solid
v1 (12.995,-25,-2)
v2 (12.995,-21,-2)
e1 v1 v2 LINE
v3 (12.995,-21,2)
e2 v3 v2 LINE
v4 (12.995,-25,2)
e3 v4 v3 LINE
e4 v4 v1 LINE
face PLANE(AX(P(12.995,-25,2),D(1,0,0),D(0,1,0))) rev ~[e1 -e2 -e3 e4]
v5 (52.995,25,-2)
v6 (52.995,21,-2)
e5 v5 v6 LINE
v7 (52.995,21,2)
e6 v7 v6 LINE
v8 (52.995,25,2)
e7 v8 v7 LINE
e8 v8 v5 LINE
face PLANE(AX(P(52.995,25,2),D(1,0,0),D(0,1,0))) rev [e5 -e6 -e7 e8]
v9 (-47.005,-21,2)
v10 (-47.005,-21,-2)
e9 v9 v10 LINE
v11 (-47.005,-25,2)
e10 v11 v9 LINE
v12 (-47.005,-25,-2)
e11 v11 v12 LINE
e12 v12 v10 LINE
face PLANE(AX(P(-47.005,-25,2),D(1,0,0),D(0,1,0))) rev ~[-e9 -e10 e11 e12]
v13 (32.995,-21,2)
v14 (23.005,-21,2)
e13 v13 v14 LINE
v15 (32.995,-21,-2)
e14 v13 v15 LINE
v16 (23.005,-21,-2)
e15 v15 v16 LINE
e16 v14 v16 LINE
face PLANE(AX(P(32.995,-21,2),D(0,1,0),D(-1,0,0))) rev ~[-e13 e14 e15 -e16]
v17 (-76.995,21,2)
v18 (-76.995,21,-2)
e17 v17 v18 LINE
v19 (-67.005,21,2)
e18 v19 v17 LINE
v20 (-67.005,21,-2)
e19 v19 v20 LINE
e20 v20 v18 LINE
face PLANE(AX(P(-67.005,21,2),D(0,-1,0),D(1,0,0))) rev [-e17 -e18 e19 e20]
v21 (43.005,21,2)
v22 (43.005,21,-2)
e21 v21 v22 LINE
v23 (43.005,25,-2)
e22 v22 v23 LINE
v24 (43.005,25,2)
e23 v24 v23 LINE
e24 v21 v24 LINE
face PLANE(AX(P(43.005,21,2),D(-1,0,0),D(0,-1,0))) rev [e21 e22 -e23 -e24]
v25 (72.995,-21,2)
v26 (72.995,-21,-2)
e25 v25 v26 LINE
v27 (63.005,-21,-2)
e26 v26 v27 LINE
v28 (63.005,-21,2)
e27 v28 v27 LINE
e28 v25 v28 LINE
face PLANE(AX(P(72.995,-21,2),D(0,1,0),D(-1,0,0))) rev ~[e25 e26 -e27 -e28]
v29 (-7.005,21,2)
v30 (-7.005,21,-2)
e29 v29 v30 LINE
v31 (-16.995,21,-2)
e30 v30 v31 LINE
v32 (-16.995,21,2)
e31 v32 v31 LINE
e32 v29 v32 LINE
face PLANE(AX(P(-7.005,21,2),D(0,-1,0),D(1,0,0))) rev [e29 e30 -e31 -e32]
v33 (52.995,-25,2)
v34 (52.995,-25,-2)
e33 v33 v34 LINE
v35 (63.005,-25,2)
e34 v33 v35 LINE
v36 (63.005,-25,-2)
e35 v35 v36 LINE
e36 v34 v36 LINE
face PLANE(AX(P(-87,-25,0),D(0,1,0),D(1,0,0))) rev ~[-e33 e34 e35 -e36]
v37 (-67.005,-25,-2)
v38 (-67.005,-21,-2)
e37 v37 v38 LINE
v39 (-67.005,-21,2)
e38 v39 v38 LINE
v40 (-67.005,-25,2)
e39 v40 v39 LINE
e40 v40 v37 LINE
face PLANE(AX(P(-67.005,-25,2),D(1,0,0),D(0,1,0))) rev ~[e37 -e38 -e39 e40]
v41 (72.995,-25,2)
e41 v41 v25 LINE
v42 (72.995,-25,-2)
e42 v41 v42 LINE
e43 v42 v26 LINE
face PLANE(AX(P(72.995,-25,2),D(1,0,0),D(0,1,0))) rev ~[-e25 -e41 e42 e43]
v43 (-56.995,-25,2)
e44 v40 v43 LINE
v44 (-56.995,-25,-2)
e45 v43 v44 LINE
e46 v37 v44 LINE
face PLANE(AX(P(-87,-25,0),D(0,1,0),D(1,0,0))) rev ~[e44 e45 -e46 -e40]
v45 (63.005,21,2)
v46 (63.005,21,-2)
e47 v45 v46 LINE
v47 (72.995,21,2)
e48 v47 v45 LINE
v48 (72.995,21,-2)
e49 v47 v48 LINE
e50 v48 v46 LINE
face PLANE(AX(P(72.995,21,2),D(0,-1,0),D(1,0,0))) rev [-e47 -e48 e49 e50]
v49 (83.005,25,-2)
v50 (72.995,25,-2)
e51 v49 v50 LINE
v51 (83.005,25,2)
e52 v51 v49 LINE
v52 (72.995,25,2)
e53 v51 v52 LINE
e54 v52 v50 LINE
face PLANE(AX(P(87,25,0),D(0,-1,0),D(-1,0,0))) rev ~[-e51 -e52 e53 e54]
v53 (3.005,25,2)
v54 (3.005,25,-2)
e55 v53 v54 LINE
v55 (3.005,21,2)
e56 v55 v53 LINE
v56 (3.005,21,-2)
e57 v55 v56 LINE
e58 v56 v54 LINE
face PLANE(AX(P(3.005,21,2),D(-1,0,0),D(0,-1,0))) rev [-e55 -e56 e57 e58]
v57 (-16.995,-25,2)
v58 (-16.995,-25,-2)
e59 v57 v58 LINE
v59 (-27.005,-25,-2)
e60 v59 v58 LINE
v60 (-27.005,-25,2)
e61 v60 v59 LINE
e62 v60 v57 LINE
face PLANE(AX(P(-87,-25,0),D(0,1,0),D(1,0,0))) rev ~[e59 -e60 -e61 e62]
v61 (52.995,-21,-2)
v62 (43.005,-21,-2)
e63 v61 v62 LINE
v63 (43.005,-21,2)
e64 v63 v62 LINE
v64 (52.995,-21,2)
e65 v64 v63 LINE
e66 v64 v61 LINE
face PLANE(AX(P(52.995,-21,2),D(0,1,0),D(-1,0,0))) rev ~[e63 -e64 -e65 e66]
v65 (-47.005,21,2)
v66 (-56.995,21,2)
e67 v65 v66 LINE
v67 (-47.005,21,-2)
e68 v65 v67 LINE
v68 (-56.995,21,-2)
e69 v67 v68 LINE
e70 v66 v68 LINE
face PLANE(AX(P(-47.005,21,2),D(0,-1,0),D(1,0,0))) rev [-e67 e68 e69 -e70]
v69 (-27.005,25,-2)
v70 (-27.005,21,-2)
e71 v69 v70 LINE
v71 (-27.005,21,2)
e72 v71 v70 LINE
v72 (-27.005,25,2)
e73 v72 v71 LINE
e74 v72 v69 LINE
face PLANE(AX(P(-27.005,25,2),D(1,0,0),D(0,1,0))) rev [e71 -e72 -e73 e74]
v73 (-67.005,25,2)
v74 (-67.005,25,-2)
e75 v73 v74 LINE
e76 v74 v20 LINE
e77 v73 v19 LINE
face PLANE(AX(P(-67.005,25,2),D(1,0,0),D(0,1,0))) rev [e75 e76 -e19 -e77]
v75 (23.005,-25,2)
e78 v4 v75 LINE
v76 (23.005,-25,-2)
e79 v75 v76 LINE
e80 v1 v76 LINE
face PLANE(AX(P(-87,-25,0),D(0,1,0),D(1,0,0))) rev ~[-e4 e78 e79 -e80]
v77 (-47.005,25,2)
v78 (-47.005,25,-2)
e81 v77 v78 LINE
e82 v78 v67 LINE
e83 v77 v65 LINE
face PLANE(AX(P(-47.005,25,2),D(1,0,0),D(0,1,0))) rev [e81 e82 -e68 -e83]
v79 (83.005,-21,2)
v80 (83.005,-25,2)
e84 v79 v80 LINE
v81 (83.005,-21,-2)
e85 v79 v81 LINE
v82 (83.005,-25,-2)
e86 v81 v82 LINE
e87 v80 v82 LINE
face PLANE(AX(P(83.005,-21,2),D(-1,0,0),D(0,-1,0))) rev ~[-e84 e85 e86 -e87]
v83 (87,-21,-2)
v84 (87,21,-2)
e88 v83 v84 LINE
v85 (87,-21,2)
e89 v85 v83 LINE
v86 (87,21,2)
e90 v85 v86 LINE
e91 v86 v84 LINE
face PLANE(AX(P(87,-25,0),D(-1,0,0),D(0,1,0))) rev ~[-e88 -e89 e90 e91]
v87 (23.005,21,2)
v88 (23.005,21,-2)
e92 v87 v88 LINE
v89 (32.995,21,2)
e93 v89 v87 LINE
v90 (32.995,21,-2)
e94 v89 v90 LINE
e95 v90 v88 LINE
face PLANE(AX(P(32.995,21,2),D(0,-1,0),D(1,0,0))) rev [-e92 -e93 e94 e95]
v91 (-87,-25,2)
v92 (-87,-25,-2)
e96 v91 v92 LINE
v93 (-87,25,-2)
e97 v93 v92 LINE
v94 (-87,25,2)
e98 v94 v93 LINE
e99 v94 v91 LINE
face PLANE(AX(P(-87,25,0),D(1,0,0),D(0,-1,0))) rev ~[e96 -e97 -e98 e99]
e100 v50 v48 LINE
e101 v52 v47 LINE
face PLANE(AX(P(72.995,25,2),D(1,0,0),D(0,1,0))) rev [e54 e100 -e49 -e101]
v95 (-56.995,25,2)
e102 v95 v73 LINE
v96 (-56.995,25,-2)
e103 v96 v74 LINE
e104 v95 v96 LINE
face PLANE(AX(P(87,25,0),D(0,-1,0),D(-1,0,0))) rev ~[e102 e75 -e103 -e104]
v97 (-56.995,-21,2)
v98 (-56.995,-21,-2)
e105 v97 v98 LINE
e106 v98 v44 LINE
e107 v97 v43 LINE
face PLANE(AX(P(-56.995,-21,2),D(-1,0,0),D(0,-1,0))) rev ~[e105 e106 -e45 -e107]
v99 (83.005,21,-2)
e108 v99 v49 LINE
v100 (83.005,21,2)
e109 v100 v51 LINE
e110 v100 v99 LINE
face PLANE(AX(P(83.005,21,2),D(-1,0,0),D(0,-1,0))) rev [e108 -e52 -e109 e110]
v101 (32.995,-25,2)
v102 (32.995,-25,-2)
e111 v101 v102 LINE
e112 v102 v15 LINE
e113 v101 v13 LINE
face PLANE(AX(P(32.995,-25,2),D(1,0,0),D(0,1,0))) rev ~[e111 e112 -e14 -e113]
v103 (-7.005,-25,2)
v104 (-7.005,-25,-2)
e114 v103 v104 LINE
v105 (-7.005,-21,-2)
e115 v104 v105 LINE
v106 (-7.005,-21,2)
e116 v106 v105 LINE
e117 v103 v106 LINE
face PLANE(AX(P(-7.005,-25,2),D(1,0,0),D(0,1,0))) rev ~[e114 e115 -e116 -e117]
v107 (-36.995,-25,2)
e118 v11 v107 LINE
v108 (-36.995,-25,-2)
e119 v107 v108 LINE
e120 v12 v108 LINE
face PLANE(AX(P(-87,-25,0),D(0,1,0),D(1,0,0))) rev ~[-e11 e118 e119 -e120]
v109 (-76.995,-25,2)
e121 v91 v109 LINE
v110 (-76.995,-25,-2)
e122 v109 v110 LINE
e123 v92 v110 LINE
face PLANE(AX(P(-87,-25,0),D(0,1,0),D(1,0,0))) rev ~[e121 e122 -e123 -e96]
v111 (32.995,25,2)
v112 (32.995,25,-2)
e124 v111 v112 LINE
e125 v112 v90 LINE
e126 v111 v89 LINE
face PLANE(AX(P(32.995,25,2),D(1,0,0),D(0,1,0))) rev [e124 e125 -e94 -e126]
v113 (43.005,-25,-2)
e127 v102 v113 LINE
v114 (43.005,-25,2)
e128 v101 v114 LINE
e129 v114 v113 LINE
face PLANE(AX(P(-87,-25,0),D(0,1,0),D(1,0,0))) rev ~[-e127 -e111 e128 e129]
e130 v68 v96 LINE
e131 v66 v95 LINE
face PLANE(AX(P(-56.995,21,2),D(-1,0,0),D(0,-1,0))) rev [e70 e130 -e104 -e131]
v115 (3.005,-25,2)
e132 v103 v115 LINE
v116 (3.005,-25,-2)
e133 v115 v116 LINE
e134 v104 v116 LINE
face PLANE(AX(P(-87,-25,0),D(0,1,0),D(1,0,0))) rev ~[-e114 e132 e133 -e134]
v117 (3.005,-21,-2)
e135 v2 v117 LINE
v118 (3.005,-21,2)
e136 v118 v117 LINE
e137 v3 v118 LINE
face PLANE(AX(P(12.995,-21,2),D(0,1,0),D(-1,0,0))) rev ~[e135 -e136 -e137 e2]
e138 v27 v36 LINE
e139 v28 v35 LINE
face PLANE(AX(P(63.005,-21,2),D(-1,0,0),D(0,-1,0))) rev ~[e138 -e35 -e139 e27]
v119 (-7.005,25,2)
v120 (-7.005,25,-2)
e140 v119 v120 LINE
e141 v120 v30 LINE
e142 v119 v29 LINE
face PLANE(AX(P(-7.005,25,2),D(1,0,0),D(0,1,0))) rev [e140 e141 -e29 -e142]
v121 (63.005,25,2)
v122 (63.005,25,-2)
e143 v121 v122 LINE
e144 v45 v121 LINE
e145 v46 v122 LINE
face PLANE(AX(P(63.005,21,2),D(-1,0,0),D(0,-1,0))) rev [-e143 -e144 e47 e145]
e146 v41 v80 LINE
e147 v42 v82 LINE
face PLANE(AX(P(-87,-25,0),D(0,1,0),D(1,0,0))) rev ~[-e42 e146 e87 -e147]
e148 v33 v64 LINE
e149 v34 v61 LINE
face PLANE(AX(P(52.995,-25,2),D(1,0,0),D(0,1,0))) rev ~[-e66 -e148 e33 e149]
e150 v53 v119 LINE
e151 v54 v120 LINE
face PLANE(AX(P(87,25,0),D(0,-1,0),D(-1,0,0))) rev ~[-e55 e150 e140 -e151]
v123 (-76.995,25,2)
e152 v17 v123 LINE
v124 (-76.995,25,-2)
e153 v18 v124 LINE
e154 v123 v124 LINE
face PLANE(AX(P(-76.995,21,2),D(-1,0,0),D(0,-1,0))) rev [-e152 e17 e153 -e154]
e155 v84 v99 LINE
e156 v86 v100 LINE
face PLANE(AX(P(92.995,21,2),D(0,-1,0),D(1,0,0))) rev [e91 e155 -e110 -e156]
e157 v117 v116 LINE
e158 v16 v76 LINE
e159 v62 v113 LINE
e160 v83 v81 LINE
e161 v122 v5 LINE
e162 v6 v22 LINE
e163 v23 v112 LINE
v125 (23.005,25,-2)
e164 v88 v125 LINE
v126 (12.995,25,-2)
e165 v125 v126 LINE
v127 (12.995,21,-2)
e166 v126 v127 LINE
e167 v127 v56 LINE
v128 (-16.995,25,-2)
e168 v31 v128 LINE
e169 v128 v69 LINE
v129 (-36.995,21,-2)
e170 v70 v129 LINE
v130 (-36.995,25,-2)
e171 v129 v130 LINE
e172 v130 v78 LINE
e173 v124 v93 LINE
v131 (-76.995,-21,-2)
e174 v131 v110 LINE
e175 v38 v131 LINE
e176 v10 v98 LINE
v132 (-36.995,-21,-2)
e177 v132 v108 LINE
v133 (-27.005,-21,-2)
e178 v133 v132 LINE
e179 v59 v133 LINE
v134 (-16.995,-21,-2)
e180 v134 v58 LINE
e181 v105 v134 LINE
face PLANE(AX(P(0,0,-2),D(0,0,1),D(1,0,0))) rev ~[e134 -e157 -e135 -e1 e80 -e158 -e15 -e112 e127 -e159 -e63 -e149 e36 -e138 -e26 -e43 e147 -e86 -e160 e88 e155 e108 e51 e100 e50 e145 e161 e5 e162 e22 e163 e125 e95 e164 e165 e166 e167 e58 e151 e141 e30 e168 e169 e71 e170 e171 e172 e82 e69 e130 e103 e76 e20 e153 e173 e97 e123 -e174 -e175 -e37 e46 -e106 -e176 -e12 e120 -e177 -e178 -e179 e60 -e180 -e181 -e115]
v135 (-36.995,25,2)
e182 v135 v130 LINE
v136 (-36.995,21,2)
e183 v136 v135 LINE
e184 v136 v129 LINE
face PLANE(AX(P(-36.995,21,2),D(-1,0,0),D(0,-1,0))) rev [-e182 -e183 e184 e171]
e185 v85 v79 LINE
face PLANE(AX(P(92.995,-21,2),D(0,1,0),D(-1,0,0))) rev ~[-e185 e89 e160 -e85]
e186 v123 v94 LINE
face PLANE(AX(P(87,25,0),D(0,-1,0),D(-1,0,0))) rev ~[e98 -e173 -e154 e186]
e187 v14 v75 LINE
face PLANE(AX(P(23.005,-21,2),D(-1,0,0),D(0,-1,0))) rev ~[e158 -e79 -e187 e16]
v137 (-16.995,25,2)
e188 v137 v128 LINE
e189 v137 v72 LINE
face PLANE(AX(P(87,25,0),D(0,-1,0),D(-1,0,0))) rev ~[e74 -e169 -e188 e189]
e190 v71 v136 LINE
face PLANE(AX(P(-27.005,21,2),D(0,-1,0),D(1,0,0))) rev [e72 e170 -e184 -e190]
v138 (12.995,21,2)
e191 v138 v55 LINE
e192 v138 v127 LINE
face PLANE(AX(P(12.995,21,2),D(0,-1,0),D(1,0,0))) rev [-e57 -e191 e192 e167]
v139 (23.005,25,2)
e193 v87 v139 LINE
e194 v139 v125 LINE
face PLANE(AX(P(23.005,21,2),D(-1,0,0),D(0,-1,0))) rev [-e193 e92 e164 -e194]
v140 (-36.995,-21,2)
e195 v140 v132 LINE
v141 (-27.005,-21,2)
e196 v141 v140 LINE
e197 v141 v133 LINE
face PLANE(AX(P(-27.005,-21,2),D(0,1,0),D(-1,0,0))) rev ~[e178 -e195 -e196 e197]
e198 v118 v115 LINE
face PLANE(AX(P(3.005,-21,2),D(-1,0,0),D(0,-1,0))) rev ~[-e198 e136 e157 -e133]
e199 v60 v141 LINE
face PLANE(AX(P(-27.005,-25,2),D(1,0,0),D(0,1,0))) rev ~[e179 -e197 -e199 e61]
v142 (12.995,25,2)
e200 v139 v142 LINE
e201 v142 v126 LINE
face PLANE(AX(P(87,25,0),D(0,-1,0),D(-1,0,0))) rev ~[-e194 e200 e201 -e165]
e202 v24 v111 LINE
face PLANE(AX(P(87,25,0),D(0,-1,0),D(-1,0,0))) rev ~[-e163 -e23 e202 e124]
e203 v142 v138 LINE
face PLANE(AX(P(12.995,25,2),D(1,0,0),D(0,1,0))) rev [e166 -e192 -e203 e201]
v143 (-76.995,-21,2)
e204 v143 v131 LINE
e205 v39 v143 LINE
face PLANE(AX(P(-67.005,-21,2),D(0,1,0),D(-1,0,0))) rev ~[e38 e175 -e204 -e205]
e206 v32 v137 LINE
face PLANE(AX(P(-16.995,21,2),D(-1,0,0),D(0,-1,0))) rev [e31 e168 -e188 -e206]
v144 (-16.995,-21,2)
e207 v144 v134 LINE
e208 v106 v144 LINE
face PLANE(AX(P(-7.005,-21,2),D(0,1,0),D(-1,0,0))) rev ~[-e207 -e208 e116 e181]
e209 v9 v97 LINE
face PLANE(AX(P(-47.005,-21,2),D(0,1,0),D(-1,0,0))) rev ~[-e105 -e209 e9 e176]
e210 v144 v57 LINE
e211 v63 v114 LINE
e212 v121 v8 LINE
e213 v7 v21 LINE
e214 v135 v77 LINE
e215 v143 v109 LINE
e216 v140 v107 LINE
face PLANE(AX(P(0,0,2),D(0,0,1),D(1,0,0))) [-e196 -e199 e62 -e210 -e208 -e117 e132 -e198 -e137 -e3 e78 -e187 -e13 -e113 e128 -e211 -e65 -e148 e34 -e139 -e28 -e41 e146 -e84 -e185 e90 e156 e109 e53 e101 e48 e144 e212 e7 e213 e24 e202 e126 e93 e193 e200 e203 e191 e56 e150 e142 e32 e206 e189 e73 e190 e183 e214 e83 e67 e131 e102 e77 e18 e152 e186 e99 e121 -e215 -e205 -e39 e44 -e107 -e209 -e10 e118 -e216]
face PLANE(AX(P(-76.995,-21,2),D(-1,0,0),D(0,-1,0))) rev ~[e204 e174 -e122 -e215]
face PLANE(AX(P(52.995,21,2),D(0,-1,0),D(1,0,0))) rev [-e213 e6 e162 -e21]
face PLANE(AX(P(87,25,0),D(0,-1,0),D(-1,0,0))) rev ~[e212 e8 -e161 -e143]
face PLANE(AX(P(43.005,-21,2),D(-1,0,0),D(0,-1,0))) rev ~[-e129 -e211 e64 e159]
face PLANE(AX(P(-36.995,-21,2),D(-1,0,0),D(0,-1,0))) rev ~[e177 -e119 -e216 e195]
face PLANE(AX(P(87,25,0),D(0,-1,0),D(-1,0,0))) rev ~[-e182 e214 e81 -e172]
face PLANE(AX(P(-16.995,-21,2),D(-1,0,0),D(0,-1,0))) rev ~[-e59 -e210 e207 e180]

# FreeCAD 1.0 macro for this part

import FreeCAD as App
import Part
import Sketcher
from FreeCAD import Vector
Q = App.Units.Quantity


def add_polygon(sketch, points):
    """Adds a closed chain of lines whose ends are joined by coincident constraints."""
    first, n = sketch.GeometryCount, len(points)
    for a, b in zip(points, points[1:] + points[:1]):
        sketch.addGeometry(Part.LineSegment(App.Vector(*a, 0), App.Vector(*b, 0)), False)
    for i in range(n):
        sketch.addConstraint(Sketcher.Constraint("Coincident", first + i, 2, first + (i + 1) % n, 1))

doc = App.newDocument("Part")
body = doc.addObject("PartDesign::Body", "Body")

sketch1 = body.newObject("Sketcher::SketchObject", "Sketch")
sketch1.AttachmentSupport = (doc.getObject("XY_Plane"), [""])
sketch1.MapMode = "FlatFace"
add_polygon(sketch1, [(-87, 25), (-87, -25), (87, -25), (87, 25)])
sketch1.addConstraint(Sketcher.Constraint("Vertical", 0))
sketch1.addConstraint(Sketcher.Constraint("Horizontal", 1))
sketch1.addConstraint(Sketcher.Constraint("Vertical", 2))
sketch1.addConstraint(Sketcher.Constraint("Horizontal", 3))
sketch1.addConstraint(Sketcher.Constraint("Symmetric", 0, 2, 2, 2, -1, 1))
sketch1.addConstraint(Sketcher.Constraint("DistanceX", 0, 2, -1, 1, Q("87 mm")))
sketch1.addConstraint(Sketcher.Constraint("DistanceY", 0, 2, 0, 1, Q("50 mm")))
pad1 = body.newObject("PartDesign::Pad", "Pad")
pad1.Profile = sketch1
pad1.Length = 4
pad1.Midplane = True

sketch2 = body.newObject("Sketcher::SketchObject", "Sketch001")
sketch2.AttachmentSupport = (doc.getObject("XY_Plane"), [""])
sketch2.MapMode = "FlatFace"
sketch2.AttachmentOffset = App.Placement(Vector(0, 0, 2), App.Rotation())
add_polygon(sketch2, [(-57, -21), (-57, -25), (-47, -25), (-47, -21)])
add_polygon(sketch2, [(-37, -21), (-37, -25), (-27, -25), (-27, -21)])
add_polygon(sketch2, [(-17, -21), (-17, -25), (-7, -25), (-7, -21)])
add_polygon(sketch2, [(3, -21), (3, -25), (13, -25), (13, -21)])
add_polygon(sketch2, [(23, -21), (23, -25), (33, -25), (33, -21)])
add_polygon(sketch2, [(43, -21), (43, -25), (53, -25), (53, -21)])
add_polygon(sketch2, [(63, -21), (63, -25), (73, -25), (73, -21)])
add_polygon(sketch2, [(83, -21), (83, -25), (93, -25), (93, -21)])
add_polygon(sketch2, [(-77, -21), (-77, -25), (-67, -25), (-67, -21)])
sketch2.addConstraint(Sketcher.Constraint("Vertical", 0))
sketch2.addConstraint(Sketcher.Constraint("Horizontal", 1))
sketch2.addConstraint(Sketcher.Constraint("Vertical", 2))
sketch2.addConstraint(Sketcher.Constraint("Horizontal", 3))
sketch2.addConstraint(Sketcher.Constraint("Vertical", 4))
sketch2.addConstraint(Sketcher.Constraint("Horizontal", 5))
sketch2.addConstraint(Sketcher.Constraint("Vertical", 6))
sketch2.addConstraint(Sketcher.Constraint("Horizontal", 7))
sketch2.addConstraint(Sketcher.Constraint("Vertical", 8))
sketch2.addConstraint(Sketcher.Constraint("Horizontal", 9))
sketch2.addConstraint(Sketcher.Constraint("Vertical", 10))
sketch2.addConstraint(Sketcher.Constraint("Horizontal", 11))
sketch2.addConstraint(Sketcher.Constraint("Vertical", 12))
sketch2.addConstraint(Sketcher.Constraint("Horizontal", 13))
sketch2.addConstraint(Sketcher.Constraint("Vertical", 14))
sketch2.addConstraint(Sketcher.Constraint("Horizontal", 15))
sketch2.addConstraint(Sketcher.Constraint("Vertical", 16))
sketch2.addConstraint(Sketcher.Constraint("Horizontal", 17))
sketch2.addConstraint(Sketcher.Constraint("Vertical", 18))
sketch2.addConstraint(Sketcher.Constraint("Horizontal", 19))
sketch2.addConstraint(Sketcher.Constraint("Vertical", 20))
sketch2.addConstraint(Sketcher.Constraint("Horizontal", 21))
sketch2.addConstraint(Sketcher.Constraint("Vertical", 22))
sketch2.addConstraint(Sketcher.Constraint("Horizontal", 23))
sketch2.addConstraint(Sketcher.Constraint("Vertical", 24))
sketch2.addConstraint(Sketcher.Constraint("Horizontal", 25))
sketch2.addConstraint(Sketcher.Constraint("Vertical", 26))
sketch2.addConstraint(Sketcher.Constraint("Horizontal", 27))
sketch2.addConstraint(Sketcher.Constraint("Vertical", 28))
sketch2.addConstraint(Sketcher.Constraint("Horizontal", 29))
sketch2.addConstraint(Sketcher.Constraint("Vertical", 30))
sketch2.addConstraint(Sketcher.Constraint("Horizontal", 31))
sketch2.addConstraint(Sketcher.Constraint("Vertical", 32))
sketch2.addConstraint(Sketcher.Constraint("Horizontal", 33))
sketch2.addConstraint(Sketcher.Constraint("Vertical", 34))
sketch2.addConstraint(Sketcher.Constraint("Horizontal", 35))
sketch2.addConstraint(Sketcher.Constraint("Horizontal", 1, 2, 4, 2))
sketch2.addConstraint(Sketcher.Constraint("Horizontal", 3, 2, 6, 2))
sketch2.addConstraint(Sketcher.Constraint("Horizontal", 5, 2, 8, 2))
sketch2.addConstraint(Sketcher.Constraint("Horizontal", 7, 2, 10, 2))
sketch2.addConstraint(Sketcher.Constraint("Horizontal", 9, 2, 12, 2))
sketch2.addConstraint(Sketcher.Constraint("Horizontal", 11, 2, 14, 2))
sketch2.addConstraint(Sketcher.Constraint("Horizontal", 13, 2, 16, 2))
sketch2.addConstraint(Sketcher.Constraint("Horizontal", 15, 2, 18, 2))
sketch2.addConstraint(Sketcher.Constraint("Horizontal", 17, 2, 20, 2))
sketch2.addConstraint(Sketcher.Constraint("Horizontal", 19, 2, 22, 2))
sketch2.addConstraint(Sketcher.Constraint("Horizontal", 21, 2, 24, 2))
sketch2.addConstraint(Sketcher.Constraint("Horizontal", 23, 2, 26, 2))
sketch2.addConstraint(Sketcher.Constraint("Horizontal", 25, 2, 28, 2))
sketch2.addConstraint(Sketcher.Constraint("Horizontal", 27, 2, 30, 2))
sketch2.addConstraint(Sketcher.Constraint("Horizontal", 29, 2, 32, 2))
sketch2.addConstraint(Sketcher.Constraint("Horizontal", 31, 2, 34, 2))
sketch2.addConstraint(Sketcher.Constraint("Equal", 3, 5))
sketch2.addConstraint(Sketcher.Constraint("Equal", 7, 9))
sketch2.addConstraint(Sketcher.Constraint("Equal", 11, 13))
sketch2.addConstraint(Sketcher.Constraint("Equal", 15, 17))
sketch2.addConstraint(Sketcher.Constraint("Equal", 19, 21))
sketch2.addConstraint(Sketcher.Constraint("Equal", 23, 25))
sketch2.addConstraint(Sketcher.Constraint("Equal", 27, 29))
sketch2.addConstraint(Sketcher.Constraint("Equal", 31, 33))
sketch2.addConstraint(Sketcher.Constraint("DistanceY", 0, 2, 0, 1, Q("4 mm")))
sketch2.addConstraint(Sketcher.Constraint("DistanceX", 1, 2, -1, 1, Q("47.005 mm")))
sketch2.addConstraint(Sketcher.Constraint("DistanceX", 4, 2, -1, 1, Q("36.995 mm")))
sketch2.addConstraint(Sketcher.Constraint("DistanceX", 5, 2, -1, 1, Q("27.005 mm")))
sketch2.addConstraint(Sketcher.Constraint("DistanceX", 8, 2, -1, 1, Q("16.995 mm")))
sketch2.addConstraint(Sketcher.Constraint("DistanceX", -1, 1, 12, 2, Q("3.005 mm")))
sketch2.addConstraint(Sketcher.Constraint("DistanceX", -1, 1, 16, 2, Q("23.005 mm")))
sketch2.addConstraint(Sketcher.Constraint("DistanceX", -1, 1, 20, 2, Q("43.005 mm")))
sketch2.addConstraint(Sketcher.Constraint("DistanceX", -1, 1, 24, 2, Q("63.005 mm")))
sketch2.addConstraint(Sketcher.Constraint("DistanceX", -1, 1, 28, 2, Q("83.005 mm")))
sketch2.addConstraint(Sketcher.Constraint("DistanceX", 32, 2, -1, 1, Q("76.995 mm")))
sketch2.addConstraint(Sketcher.Constraint("DistanceY", 0, 2, -1, 1, Q("25 mm")))
pocket1 = body.newObject("PartDesign::Pocket", "Pocket")
pocket1.Profile = sketch2
pocket1.Length = 32
doc.recompute()

mirrored = body.newObject("PartDesign::Mirrored", "Mirrored")
mirrored.Originals = [pocket1]
mirrored.MirrorPlane = (doc.getObject("XZ_Plane"), [""])
body.Tip = mirrored

doc.recompute()
